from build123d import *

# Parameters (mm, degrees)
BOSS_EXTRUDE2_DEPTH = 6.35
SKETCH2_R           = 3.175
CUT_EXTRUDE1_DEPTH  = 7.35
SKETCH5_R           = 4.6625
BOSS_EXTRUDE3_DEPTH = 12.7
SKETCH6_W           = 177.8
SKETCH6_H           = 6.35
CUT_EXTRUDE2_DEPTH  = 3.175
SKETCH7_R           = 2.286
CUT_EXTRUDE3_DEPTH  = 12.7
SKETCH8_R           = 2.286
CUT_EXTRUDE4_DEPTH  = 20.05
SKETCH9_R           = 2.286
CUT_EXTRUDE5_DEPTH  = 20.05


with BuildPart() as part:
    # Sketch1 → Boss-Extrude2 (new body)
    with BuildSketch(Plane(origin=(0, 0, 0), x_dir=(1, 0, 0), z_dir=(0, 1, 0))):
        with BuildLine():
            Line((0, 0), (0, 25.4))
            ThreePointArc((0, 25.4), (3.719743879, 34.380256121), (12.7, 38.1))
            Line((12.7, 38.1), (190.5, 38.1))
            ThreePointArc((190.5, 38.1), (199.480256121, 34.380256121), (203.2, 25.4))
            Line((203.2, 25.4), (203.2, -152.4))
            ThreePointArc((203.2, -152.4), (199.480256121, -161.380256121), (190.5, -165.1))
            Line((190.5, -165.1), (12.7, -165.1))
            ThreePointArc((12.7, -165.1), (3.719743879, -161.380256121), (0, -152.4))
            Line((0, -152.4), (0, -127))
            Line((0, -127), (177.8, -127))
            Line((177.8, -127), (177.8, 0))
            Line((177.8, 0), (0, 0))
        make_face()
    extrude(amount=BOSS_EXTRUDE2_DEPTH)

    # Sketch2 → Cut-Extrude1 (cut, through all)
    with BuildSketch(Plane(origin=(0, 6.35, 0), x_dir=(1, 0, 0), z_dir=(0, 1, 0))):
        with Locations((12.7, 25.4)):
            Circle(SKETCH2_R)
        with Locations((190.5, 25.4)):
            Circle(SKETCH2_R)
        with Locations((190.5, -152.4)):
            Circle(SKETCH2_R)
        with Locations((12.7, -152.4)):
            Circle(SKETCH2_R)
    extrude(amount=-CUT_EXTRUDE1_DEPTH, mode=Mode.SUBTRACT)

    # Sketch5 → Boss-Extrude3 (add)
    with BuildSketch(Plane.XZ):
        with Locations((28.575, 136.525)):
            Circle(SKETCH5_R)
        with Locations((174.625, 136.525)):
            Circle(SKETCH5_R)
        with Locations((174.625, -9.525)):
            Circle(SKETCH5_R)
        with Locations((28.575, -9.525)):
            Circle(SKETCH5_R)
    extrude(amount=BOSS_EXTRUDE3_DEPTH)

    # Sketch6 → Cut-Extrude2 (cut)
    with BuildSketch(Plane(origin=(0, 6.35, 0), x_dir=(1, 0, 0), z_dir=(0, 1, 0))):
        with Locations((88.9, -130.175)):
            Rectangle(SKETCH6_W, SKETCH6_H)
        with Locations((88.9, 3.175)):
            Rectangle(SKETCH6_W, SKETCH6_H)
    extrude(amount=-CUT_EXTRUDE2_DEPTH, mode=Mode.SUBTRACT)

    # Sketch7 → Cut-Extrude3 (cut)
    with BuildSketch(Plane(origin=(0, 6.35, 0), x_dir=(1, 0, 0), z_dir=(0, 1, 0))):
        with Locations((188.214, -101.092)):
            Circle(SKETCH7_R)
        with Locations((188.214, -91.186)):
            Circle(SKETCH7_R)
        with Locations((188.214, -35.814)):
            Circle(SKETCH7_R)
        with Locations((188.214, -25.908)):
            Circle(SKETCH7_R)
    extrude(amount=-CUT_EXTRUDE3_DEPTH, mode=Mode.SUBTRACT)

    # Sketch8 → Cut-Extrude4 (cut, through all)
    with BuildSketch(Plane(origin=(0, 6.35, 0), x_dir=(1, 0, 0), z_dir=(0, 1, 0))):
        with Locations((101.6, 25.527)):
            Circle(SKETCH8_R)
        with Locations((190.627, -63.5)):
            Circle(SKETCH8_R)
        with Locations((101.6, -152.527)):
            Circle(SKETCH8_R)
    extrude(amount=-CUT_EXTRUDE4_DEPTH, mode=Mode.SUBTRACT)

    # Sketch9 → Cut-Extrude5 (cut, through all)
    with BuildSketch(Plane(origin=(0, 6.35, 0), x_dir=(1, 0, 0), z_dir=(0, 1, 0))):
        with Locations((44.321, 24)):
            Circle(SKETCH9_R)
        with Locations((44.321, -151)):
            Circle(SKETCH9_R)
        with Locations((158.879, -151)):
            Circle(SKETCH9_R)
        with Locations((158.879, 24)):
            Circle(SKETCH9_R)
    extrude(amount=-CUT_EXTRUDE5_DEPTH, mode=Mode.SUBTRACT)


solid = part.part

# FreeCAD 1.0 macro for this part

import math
import FreeCAD as App
import Part
import Sketcher
Q = App.Units.Quantity


def add_polygon(sketch, points):
    """Adds a closed chain of lines whose ends are joined by coincident constraints."""
    first, n = sketch.GeometryCount, len(points)
    for a, b in zip(points, points[1:] + points[:1]):
        sketch.addGeometry(Part.LineSegment(App.Vector(*a, 0), App.Vector(*b, 0)), False)
    for i in range(n):
        sketch.addConstraint(Sketcher.Constraint("Coincident", first + i, 2, first + (i + 1) % n, 1))

doc = App.newDocument("Part")
body = doc.addObject("PartDesign::Body", "Body")

# Sketch on XZ plane
sketch1 = body.newObject("Sketcher::SketchObject", "Sketch")
sketch1.AttachmentSupport = (doc.getObject("XZ_Plane"), [""])
sketch1.MapMode = "FlatFace"
sketch1.addGeometry([
    Part.LineSegment(App.Vector(0, -25.4, 0), App.Vector(0, 0, 0)),  # 0
    Part.LineSegment(App.Vector(0, 0, 0), App.Vector(177.8, 0, 0)),  # 1
    Part.LineSegment(App.Vector(177.8, 0, 0), App.Vector(177.8, 127, 0)),  # 2
    Part.LineSegment(App.Vector(177.8, 127, 0), App.Vector(0, 127, 0)),  # 3
    Part.LineSegment(App.Vector(0, 127, 0), App.Vector(0, 152.4, 0)),  # 4
    Part.ArcOfCircle(Part.Circle(App.Vector(12.7, 152.4, 0), App.Vector(0, 0, 1), 12.7), math.radians(90), math.radians(180)),  # 5
    Part.LineSegment(App.Vector(12.7, 165.1, 0), App.Vector(190.5, 165.1, 0)),  # 6
    Part.ArcOfCircle(Part.Circle(App.Vector(190.5, 152.4, 0), App.Vector(0, 0, 1), 12.7), math.radians(0), math.radians(90)),  # 7
    Part.LineSegment(App.Vector(203.2, 152.4, 0), App.Vector(203.2, -25.4, 0)),  # 8
    Part.ArcOfCircle(Part.Circle(App.Vector(190.5, -25.4, 0), App.Vector(0, 0, 1), 12.7), math.radians(-90), math.radians(0)),  # 9
    Part.LineSegment(App.Vector(190.5, -38.1, 0), App.Vector(12.7, -38.1, 0)),  # 10
    Part.ArcOfCircle(Part.Circle(App.Vector(12.7, -25.4, 0), App.Vector(0, 0, 1), 12.7), math.radians(180), math.radians(270)),  # 11
], False)
sketch1.addConstraint([
    Sketcher.Constraint("Coincident", 0, 2, 1, 1),
    Sketcher.Constraint("Coincident", 1, 2, 2, 1),
    Sketcher.Constraint("Coincident", 2, 2, 3, 1),
    Sketcher.Constraint("Coincident", 3, 2, 4, 1),
    Sketcher.Constraint("Tangent", 4, 2, 5, 2),
    Sketcher.Constraint("Tangent", 5, 1, 6, 1),
    Sketcher.Constraint("Tangent", 6, 2, 7, 2),
    Sketcher.Constraint("Tangent", 7, 1, 8, 1),
    Sketcher.Constraint("Tangent", 8, 2, 9, 2),
    Sketcher.Constraint("Tangent", 9, 1, 10, 1),
    Sketcher.Constraint("Tangent", 10, 2, 11, 2),
    Sketcher.Constraint("Tangent", 11, 1, 0, 1),
    Sketcher.Constraint("Vertical", 0),
    Sketcher.Constraint("Horizontal", 1),
    Sketcher.Constraint("Vertical", 2),
    Sketcher.Constraint("Horizontal", 3),
    Sketcher.Constraint("Vertical", 4),
    Sketcher.Constraint("Horizontal", 6),
    Sketcher.Constraint("Vertical", 8),
    Sketcher.Constraint("Horizontal", 10),
    Sketcher.Constraint("Coincident", 0, 2, -1, 1),
    Sketcher.Constraint("Equal", 5, 7),
    Sketcher.Constraint("Equal", 7, 9),
    Sketcher.Constraint("Equal", 9, 11),
    Sketcher.Constraint("PointOnObject", 3, 2, -2),
    Sketcher.Constraint("Equal", 3, 6),
    Sketcher.Constraint("Equal", 0, 4),
    Sketcher.Constraint("Equal", 10, 8),
    Sketcher.Constraint("Radius", 5, Q("0.5 in")),
    Sketcher.Constraint("DistanceX", 1, 1, 1, 2, Q("7 in")),
    Sketcher.Constraint("DistanceY", 0, 1, 0, 2, Q("1 in")),
])
pad1 = body.newObject("PartDesign::Pad", "Pad")
pad1.Profile = sketch1
pad1.Length = Q("0.25 in")
pad1.Reversed = True

# Sketch on XZ plane
sketch2 = body.newObject("Sketcher::SketchObject", "Sketch001")
sketch2.AttachmentSupport = (doc.getObject("XZ_Plane"), [""])
sketch2.MapMode = "FlatFace"
sketch2.AttachmentOffset = App.Placement(App.Vector(0, 0, -0.25 * 25.4), App.Rotation())
sketch2.addGeometry([
    Part.Circle(App.Vector(12.7, -25.4, 0), App.Vector(0, 0, 1), 3.175),
    Part.Circle(App.Vector(190.5, -25.4, 0), App.Vector(0, 0, 1), 3.175),
    Part.Circle(App.Vector(190.5, 152.4, 0), App.Vector(0, 0, 1), 3.175),
    Part.Circle(App.Vector(12.7, 152.4, 0), App.Vector(0, 0, 1), 3.175),
], False)
sketch2.addConstraint([
    Sketcher.Constraint("Equal", 0, 1),
    Sketcher.Constraint("Equal", 1, 2),
    Sketcher.Constraint("Equal", 2, 3),
    Sketcher.Constraint("Horizontal", 0, 3, 1, 3),
    Sketcher.Constraint("Horizontal", 2, 3, 3, 3),
    Sketcher.Constraint("Vertical", 1, 3, 2, 3),
    Sketcher.Constraint("Vertical", 0, 3, 3, 3),
    Sketcher.Constraint("Diameter", 0, Q("0.25 in")),
    Sketcher.Constraint("DistanceY", 0, 3, -1, 1, Q("1 in")),
    Sketcher.Constraint("DistanceY", -1, 1, 2, 3, Q("6 in")),
    Sketcher.Constraint("DistanceX", 0, 3, 1, 3, Q("7 in")),
    Sketcher.Constraint("DistanceX", -1, 1, 0, 3, Q("0.5 in")),
])
pocket1 = body.newObject("PartDesign::Pocket", "Pocket")
pocket1.Profile = sketch2
pocket1.Type = "ThroughAll"
pocket1.Reversed = True

# Sketch on XZ plane
sketch3 = body.newObject("Sketcher::SketchObject", "Sketch002")
sketch3.AttachmentSupport = (doc.getObject("XZ_Plane"), [""])
sketch3.MapMode = "FlatFace"
sketch3.addGeometry([
    Part.Circle(App.Vector(28.575, 136.525, 0), App.Vector(0, 0, 1), 4.6625),
    Part.Circle(App.Vector(174.625, 136.525, 0), App.Vector(0, 0, 1), 4.6625),
    Part.Circle(App.Vector(174.625, -9.525, 0), App.Vector(0, 0, 1), 4.6625),
    Part.Circle(App.Vector(28.575, -9.525, 0), App.Vector(0, 0, 1), 4.6625),
], False)
sketch3.addConstraint([
    Sketcher.Constraint("Equal", 0, 1),
    Sketcher.Constraint("Equal", 1, 2),
    Sketcher.Constraint("Equal", 2, 3),
    Sketcher.Constraint("Horizontal", 0, 3, 1, 3),
    Sketcher.Constraint("Horizontal", 2, 3, 3, 3),
    Sketcher.Constraint("Vertical", 1, 3, 2, 3),
    Sketcher.Constraint("Vertical", 0, 3, 3, 3),
    Sketcher.Constraint("Diameter", 0, 9.325),
    Sketcher.Constraint("DistanceX", 0, 3, 1, 3, Q("5.75 in")),
    Sketcher.Constraint("DistanceY", 2, 3, 1, 3, Q("5.75 in")),
    Sketcher.Constraint("DistanceX", -1, 1, 0, 3, Q("1.125 in")),
    Sketcher.Constraint("DistanceY", -1, 1, 0, 3, Q("5.375 in")),
])
pad2 = body.newObject("PartDesign::Pad", "Pad001")
pad2.Profile = sketch3
pad2.Length = Q("0.5 in")

# Sketch on XZ plane
sketch4 = body.newObject("Sketcher::SketchObject", "Sketch003")
sketch4.AttachmentSupport = (doc.getObject("XZ_Plane"), [""])
sketch4.MapMode = "FlatFace"
sketch4.AttachmentOffset = App.Placement(App.Vector(0, 0, -0.25 * 25.4), App.Rotation())
add_polygon(sketch4, [(0, 127), (0, 133.35), (177.8, 133.35), (177.8, 127)])  # lines 0-3
add_polygon(sketch4, [(0, -6.35), (0, 0), (177.8, 0), (177.8, -6.35)])  # lines 4-7
sketch4.addConstraint([
    Sketcher.Constraint("Vertical", 0),
    Sketcher.Constraint("Horizontal", 1),
    Sketcher.Constraint("Vertical", 2),
    Sketcher.Constraint("Horizontal", 3),
    Sketcher.Constraint("Vertical", 4),
    Sketcher.Constraint("Horizontal", 5),
    Sketcher.Constraint("Vertical", 6),
    Sketcher.Constraint("Horizontal", 7),
    Sketcher.Constraint("Coincident", 4, 2, -1, 1),
    Sketcher.Constraint("PointOnObject", 0, 2, -2),
    Sketcher.Constraint("Vertical", 2, 2, 5, 2),
    Sketcher.Constraint("Equal", 2, 4),
    Sketcher.Constraint("DistanceX", 1, 1, 1, 2, Q("7 in")),
    Sketcher.Constraint("DistanceY", -1, 1, 2, 2, Q("5 in")),
    Sketcher.Constraint("DistanceY", 0, 1, 0, 2, Q("0.25 in")),
])
pocket2 = body.newObject("PartDesign::Pocket", "Pocket001")
pocket2.Profile = sketch4
pocket2.Length = Q("0.125 in")
pocket2.Reversed = True

# Sketch on XZ plane
sketch5 = body.newObject("Sketcher::SketchObject", "Sketch004")
sketch5.AttachmentSupport = (doc.getObject("XZ_Plane"), [""])
sketch5.MapMode = "FlatFace"
sketch5.AttachmentOffset = App.Placement(App.Vector(0, 0, -0.25 * 25.4), App.Rotation())
sketch5.addGeometry([
    Part.Circle(App.Vector(188.214, 101.092, 0), App.Vector(0, 0, 1), 2.286),
    Part.Circle(App.Vector(188.214, 91.186, 0), App.Vector(0, 0, 1), 2.286),
    Part.Circle(App.Vector(188.214, 35.814, 0), App.Vector(0, 0, 1), 2.286),
    Part.Circle(App.Vector(188.214, 25.908, 0), App.Vector(0, 0, 1), 2.286),
], False)
sketch5.addConstraint([
    Sketcher.Constraint("Equal", 0, 1),
    Sketcher.Constraint("Equal", 1, 2),
    Sketcher.Constraint("Equal", 2, 3),
    Sketcher.Constraint("Vertical", 0, 3, 1, 3),
    Sketcher.Constraint("Vertical", 1, 3, 2, 3),
    Sketcher.Constraint("Vertical", 2, 3, 3, 3),
    Sketcher.Constraint("Diameter", 0, Q("0.18 in")),
    Sketcher.Constraint("DistanceX", -1, 1, 0, 3, Q("7.41 in")),
    Sketcher.Constraint("DistanceY", -1, 1, 0, 3, Q("3.98 in")),
    Sketcher.Constraint("DistanceY", -1, 1, 1, 3, Q("3.59 in")),
    Sketcher.Constraint("DistanceY", -1, 1, 2, 3, Q("1.41 in")),
    Sketcher.Constraint("DistanceY", -1, 1, 3, 3, Q("1.02 in")),
])
pocket3 = body.newObject("PartDesign::Pocket", "Pocket002")
pocket3.Profile = sketch5
pocket3.Length = Q("0.5 in")
pocket3.Reversed = True

# Sketch on XZ plane
sketch6 = body.newObject("Sketcher::SketchObject", "Sketch005")
sketch6.AttachmentSupport = (doc.getObject("XZ_Plane"), [""])
sketch6.MapMode = "FlatFace"
sketch6.AttachmentOffset = App.Placement(App.Vector(0, 0, -0.25 * 25.4), App.Rotation())
sketch6.addGeometry([
    Part.Circle(App.Vector(101.6, -25.527, 0), App.Vector(0, 0, 1), 2.286),
    Part.Circle(App.Vector(190.627, 63.5, 0), App.Vector(0, 0, 1), 2.286),
    Part.Circle(App.Vector(101.6, 152.527, 0), App.Vector(0, 0, 1), 2.286),
], False)
sketch6.addConstraint([
    Sketcher.Constraint("Equal", 0, 1),
    Sketcher.Constraint("Equal", 1, 2),
    Sketcher.Constraint("Vertical", 0, 3, 2, 3),
    Sketcher.Constraint("Diameter", 0, Q("0.18 in")),
    Sketcher.Constraint("DistanceX", -1, 1, 0, 3, Q("4 in")),
    Sketcher.Constraint("DistanceY", -1, 1, 1, 3, Q("2.5 in")),
    Sketcher.Constraint("DistanceY", 0, 3, 2, 3, Q("7.01 in")),
    Sketcher.Constraint("DistanceY", 0, 3, -1, 1, Q("1.005 in")),
    Sketcher.Constraint("DistanceX", -1, 1, 1, 3, Q("7.505 in")),
])
pocket4 = body.newObject("PartDesign::Pocket", "Pocket003")
pocket4.Profile = sketch6
pocket4.Type = "ThroughAll"
pocket4.Reversed = True

# Sketch on XZ plane
sketch7 = body.newObject("Sketcher::SketchObject", "Sketch006")
sketch7.AttachmentSupport = (doc.getObject("XZ_Plane"), [""])
sketch7.MapMode = "FlatFace"
sketch7.AttachmentOffset = App.Placement(App.Vector(0, 0, -0.25 * 25.4), App.Rotation())
sketch7.addGeometry([
    Part.Circle(App.Vector(44.321, -24, 0), App.Vector(0, 0, 1), 2.286),
    Part.Circle(App.Vector(44.321, 151, 0), App.Vector(0, 0, 1), 2.286),
    Part.Circle(App.Vector(158.879, 151, 0), App.Vector(0, 0, 1), 2.286),
    Part.Circle(App.Vector(158.879, -24, 0), App.Vector(0, 0, 1), 2.286),
], False)
sketch7.addConstraint([
    Sketcher.Constraint("Equal", 0, 1),
    Sketcher.Constraint("Equal", 1, 2),
    Sketcher.Constraint("Equal", 2, 3),
    Sketcher.Constraint("Horizontal", 1, 3, 2, 3),
    Sketcher.Constraint("Horizontal", 0, 3, 3, 3),
    Sketcher.Constraint("Vertical", 0, 3, 1, 3),
    Sketcher.Constraint("Vertical", 2, 3, 3, 3),
    Sketcher.Constraint("Diameter", 0, Q("0.18 in")),
    Sketcher.Constraint("DistanceX", -1, 1, 0, 3, 44.321),
    Sketcher.Constraint("DistanceY", 0, 3, -1, 1, 24.0),
    Sketcher.Constraint("DistanceY", -1, 1, 1, 3, 151.0),
    Sketcher.Constraint("DistanceX", -1, 1, 2, 3, 158.879),
])
pocket5 = body.newObject("PartDesign::Pocket", "Pocket004")
pocket5.Profile = sketch7
pocket5.Type = "ThroughAll"
pocket5.Reversed = True

doc.recompute()
